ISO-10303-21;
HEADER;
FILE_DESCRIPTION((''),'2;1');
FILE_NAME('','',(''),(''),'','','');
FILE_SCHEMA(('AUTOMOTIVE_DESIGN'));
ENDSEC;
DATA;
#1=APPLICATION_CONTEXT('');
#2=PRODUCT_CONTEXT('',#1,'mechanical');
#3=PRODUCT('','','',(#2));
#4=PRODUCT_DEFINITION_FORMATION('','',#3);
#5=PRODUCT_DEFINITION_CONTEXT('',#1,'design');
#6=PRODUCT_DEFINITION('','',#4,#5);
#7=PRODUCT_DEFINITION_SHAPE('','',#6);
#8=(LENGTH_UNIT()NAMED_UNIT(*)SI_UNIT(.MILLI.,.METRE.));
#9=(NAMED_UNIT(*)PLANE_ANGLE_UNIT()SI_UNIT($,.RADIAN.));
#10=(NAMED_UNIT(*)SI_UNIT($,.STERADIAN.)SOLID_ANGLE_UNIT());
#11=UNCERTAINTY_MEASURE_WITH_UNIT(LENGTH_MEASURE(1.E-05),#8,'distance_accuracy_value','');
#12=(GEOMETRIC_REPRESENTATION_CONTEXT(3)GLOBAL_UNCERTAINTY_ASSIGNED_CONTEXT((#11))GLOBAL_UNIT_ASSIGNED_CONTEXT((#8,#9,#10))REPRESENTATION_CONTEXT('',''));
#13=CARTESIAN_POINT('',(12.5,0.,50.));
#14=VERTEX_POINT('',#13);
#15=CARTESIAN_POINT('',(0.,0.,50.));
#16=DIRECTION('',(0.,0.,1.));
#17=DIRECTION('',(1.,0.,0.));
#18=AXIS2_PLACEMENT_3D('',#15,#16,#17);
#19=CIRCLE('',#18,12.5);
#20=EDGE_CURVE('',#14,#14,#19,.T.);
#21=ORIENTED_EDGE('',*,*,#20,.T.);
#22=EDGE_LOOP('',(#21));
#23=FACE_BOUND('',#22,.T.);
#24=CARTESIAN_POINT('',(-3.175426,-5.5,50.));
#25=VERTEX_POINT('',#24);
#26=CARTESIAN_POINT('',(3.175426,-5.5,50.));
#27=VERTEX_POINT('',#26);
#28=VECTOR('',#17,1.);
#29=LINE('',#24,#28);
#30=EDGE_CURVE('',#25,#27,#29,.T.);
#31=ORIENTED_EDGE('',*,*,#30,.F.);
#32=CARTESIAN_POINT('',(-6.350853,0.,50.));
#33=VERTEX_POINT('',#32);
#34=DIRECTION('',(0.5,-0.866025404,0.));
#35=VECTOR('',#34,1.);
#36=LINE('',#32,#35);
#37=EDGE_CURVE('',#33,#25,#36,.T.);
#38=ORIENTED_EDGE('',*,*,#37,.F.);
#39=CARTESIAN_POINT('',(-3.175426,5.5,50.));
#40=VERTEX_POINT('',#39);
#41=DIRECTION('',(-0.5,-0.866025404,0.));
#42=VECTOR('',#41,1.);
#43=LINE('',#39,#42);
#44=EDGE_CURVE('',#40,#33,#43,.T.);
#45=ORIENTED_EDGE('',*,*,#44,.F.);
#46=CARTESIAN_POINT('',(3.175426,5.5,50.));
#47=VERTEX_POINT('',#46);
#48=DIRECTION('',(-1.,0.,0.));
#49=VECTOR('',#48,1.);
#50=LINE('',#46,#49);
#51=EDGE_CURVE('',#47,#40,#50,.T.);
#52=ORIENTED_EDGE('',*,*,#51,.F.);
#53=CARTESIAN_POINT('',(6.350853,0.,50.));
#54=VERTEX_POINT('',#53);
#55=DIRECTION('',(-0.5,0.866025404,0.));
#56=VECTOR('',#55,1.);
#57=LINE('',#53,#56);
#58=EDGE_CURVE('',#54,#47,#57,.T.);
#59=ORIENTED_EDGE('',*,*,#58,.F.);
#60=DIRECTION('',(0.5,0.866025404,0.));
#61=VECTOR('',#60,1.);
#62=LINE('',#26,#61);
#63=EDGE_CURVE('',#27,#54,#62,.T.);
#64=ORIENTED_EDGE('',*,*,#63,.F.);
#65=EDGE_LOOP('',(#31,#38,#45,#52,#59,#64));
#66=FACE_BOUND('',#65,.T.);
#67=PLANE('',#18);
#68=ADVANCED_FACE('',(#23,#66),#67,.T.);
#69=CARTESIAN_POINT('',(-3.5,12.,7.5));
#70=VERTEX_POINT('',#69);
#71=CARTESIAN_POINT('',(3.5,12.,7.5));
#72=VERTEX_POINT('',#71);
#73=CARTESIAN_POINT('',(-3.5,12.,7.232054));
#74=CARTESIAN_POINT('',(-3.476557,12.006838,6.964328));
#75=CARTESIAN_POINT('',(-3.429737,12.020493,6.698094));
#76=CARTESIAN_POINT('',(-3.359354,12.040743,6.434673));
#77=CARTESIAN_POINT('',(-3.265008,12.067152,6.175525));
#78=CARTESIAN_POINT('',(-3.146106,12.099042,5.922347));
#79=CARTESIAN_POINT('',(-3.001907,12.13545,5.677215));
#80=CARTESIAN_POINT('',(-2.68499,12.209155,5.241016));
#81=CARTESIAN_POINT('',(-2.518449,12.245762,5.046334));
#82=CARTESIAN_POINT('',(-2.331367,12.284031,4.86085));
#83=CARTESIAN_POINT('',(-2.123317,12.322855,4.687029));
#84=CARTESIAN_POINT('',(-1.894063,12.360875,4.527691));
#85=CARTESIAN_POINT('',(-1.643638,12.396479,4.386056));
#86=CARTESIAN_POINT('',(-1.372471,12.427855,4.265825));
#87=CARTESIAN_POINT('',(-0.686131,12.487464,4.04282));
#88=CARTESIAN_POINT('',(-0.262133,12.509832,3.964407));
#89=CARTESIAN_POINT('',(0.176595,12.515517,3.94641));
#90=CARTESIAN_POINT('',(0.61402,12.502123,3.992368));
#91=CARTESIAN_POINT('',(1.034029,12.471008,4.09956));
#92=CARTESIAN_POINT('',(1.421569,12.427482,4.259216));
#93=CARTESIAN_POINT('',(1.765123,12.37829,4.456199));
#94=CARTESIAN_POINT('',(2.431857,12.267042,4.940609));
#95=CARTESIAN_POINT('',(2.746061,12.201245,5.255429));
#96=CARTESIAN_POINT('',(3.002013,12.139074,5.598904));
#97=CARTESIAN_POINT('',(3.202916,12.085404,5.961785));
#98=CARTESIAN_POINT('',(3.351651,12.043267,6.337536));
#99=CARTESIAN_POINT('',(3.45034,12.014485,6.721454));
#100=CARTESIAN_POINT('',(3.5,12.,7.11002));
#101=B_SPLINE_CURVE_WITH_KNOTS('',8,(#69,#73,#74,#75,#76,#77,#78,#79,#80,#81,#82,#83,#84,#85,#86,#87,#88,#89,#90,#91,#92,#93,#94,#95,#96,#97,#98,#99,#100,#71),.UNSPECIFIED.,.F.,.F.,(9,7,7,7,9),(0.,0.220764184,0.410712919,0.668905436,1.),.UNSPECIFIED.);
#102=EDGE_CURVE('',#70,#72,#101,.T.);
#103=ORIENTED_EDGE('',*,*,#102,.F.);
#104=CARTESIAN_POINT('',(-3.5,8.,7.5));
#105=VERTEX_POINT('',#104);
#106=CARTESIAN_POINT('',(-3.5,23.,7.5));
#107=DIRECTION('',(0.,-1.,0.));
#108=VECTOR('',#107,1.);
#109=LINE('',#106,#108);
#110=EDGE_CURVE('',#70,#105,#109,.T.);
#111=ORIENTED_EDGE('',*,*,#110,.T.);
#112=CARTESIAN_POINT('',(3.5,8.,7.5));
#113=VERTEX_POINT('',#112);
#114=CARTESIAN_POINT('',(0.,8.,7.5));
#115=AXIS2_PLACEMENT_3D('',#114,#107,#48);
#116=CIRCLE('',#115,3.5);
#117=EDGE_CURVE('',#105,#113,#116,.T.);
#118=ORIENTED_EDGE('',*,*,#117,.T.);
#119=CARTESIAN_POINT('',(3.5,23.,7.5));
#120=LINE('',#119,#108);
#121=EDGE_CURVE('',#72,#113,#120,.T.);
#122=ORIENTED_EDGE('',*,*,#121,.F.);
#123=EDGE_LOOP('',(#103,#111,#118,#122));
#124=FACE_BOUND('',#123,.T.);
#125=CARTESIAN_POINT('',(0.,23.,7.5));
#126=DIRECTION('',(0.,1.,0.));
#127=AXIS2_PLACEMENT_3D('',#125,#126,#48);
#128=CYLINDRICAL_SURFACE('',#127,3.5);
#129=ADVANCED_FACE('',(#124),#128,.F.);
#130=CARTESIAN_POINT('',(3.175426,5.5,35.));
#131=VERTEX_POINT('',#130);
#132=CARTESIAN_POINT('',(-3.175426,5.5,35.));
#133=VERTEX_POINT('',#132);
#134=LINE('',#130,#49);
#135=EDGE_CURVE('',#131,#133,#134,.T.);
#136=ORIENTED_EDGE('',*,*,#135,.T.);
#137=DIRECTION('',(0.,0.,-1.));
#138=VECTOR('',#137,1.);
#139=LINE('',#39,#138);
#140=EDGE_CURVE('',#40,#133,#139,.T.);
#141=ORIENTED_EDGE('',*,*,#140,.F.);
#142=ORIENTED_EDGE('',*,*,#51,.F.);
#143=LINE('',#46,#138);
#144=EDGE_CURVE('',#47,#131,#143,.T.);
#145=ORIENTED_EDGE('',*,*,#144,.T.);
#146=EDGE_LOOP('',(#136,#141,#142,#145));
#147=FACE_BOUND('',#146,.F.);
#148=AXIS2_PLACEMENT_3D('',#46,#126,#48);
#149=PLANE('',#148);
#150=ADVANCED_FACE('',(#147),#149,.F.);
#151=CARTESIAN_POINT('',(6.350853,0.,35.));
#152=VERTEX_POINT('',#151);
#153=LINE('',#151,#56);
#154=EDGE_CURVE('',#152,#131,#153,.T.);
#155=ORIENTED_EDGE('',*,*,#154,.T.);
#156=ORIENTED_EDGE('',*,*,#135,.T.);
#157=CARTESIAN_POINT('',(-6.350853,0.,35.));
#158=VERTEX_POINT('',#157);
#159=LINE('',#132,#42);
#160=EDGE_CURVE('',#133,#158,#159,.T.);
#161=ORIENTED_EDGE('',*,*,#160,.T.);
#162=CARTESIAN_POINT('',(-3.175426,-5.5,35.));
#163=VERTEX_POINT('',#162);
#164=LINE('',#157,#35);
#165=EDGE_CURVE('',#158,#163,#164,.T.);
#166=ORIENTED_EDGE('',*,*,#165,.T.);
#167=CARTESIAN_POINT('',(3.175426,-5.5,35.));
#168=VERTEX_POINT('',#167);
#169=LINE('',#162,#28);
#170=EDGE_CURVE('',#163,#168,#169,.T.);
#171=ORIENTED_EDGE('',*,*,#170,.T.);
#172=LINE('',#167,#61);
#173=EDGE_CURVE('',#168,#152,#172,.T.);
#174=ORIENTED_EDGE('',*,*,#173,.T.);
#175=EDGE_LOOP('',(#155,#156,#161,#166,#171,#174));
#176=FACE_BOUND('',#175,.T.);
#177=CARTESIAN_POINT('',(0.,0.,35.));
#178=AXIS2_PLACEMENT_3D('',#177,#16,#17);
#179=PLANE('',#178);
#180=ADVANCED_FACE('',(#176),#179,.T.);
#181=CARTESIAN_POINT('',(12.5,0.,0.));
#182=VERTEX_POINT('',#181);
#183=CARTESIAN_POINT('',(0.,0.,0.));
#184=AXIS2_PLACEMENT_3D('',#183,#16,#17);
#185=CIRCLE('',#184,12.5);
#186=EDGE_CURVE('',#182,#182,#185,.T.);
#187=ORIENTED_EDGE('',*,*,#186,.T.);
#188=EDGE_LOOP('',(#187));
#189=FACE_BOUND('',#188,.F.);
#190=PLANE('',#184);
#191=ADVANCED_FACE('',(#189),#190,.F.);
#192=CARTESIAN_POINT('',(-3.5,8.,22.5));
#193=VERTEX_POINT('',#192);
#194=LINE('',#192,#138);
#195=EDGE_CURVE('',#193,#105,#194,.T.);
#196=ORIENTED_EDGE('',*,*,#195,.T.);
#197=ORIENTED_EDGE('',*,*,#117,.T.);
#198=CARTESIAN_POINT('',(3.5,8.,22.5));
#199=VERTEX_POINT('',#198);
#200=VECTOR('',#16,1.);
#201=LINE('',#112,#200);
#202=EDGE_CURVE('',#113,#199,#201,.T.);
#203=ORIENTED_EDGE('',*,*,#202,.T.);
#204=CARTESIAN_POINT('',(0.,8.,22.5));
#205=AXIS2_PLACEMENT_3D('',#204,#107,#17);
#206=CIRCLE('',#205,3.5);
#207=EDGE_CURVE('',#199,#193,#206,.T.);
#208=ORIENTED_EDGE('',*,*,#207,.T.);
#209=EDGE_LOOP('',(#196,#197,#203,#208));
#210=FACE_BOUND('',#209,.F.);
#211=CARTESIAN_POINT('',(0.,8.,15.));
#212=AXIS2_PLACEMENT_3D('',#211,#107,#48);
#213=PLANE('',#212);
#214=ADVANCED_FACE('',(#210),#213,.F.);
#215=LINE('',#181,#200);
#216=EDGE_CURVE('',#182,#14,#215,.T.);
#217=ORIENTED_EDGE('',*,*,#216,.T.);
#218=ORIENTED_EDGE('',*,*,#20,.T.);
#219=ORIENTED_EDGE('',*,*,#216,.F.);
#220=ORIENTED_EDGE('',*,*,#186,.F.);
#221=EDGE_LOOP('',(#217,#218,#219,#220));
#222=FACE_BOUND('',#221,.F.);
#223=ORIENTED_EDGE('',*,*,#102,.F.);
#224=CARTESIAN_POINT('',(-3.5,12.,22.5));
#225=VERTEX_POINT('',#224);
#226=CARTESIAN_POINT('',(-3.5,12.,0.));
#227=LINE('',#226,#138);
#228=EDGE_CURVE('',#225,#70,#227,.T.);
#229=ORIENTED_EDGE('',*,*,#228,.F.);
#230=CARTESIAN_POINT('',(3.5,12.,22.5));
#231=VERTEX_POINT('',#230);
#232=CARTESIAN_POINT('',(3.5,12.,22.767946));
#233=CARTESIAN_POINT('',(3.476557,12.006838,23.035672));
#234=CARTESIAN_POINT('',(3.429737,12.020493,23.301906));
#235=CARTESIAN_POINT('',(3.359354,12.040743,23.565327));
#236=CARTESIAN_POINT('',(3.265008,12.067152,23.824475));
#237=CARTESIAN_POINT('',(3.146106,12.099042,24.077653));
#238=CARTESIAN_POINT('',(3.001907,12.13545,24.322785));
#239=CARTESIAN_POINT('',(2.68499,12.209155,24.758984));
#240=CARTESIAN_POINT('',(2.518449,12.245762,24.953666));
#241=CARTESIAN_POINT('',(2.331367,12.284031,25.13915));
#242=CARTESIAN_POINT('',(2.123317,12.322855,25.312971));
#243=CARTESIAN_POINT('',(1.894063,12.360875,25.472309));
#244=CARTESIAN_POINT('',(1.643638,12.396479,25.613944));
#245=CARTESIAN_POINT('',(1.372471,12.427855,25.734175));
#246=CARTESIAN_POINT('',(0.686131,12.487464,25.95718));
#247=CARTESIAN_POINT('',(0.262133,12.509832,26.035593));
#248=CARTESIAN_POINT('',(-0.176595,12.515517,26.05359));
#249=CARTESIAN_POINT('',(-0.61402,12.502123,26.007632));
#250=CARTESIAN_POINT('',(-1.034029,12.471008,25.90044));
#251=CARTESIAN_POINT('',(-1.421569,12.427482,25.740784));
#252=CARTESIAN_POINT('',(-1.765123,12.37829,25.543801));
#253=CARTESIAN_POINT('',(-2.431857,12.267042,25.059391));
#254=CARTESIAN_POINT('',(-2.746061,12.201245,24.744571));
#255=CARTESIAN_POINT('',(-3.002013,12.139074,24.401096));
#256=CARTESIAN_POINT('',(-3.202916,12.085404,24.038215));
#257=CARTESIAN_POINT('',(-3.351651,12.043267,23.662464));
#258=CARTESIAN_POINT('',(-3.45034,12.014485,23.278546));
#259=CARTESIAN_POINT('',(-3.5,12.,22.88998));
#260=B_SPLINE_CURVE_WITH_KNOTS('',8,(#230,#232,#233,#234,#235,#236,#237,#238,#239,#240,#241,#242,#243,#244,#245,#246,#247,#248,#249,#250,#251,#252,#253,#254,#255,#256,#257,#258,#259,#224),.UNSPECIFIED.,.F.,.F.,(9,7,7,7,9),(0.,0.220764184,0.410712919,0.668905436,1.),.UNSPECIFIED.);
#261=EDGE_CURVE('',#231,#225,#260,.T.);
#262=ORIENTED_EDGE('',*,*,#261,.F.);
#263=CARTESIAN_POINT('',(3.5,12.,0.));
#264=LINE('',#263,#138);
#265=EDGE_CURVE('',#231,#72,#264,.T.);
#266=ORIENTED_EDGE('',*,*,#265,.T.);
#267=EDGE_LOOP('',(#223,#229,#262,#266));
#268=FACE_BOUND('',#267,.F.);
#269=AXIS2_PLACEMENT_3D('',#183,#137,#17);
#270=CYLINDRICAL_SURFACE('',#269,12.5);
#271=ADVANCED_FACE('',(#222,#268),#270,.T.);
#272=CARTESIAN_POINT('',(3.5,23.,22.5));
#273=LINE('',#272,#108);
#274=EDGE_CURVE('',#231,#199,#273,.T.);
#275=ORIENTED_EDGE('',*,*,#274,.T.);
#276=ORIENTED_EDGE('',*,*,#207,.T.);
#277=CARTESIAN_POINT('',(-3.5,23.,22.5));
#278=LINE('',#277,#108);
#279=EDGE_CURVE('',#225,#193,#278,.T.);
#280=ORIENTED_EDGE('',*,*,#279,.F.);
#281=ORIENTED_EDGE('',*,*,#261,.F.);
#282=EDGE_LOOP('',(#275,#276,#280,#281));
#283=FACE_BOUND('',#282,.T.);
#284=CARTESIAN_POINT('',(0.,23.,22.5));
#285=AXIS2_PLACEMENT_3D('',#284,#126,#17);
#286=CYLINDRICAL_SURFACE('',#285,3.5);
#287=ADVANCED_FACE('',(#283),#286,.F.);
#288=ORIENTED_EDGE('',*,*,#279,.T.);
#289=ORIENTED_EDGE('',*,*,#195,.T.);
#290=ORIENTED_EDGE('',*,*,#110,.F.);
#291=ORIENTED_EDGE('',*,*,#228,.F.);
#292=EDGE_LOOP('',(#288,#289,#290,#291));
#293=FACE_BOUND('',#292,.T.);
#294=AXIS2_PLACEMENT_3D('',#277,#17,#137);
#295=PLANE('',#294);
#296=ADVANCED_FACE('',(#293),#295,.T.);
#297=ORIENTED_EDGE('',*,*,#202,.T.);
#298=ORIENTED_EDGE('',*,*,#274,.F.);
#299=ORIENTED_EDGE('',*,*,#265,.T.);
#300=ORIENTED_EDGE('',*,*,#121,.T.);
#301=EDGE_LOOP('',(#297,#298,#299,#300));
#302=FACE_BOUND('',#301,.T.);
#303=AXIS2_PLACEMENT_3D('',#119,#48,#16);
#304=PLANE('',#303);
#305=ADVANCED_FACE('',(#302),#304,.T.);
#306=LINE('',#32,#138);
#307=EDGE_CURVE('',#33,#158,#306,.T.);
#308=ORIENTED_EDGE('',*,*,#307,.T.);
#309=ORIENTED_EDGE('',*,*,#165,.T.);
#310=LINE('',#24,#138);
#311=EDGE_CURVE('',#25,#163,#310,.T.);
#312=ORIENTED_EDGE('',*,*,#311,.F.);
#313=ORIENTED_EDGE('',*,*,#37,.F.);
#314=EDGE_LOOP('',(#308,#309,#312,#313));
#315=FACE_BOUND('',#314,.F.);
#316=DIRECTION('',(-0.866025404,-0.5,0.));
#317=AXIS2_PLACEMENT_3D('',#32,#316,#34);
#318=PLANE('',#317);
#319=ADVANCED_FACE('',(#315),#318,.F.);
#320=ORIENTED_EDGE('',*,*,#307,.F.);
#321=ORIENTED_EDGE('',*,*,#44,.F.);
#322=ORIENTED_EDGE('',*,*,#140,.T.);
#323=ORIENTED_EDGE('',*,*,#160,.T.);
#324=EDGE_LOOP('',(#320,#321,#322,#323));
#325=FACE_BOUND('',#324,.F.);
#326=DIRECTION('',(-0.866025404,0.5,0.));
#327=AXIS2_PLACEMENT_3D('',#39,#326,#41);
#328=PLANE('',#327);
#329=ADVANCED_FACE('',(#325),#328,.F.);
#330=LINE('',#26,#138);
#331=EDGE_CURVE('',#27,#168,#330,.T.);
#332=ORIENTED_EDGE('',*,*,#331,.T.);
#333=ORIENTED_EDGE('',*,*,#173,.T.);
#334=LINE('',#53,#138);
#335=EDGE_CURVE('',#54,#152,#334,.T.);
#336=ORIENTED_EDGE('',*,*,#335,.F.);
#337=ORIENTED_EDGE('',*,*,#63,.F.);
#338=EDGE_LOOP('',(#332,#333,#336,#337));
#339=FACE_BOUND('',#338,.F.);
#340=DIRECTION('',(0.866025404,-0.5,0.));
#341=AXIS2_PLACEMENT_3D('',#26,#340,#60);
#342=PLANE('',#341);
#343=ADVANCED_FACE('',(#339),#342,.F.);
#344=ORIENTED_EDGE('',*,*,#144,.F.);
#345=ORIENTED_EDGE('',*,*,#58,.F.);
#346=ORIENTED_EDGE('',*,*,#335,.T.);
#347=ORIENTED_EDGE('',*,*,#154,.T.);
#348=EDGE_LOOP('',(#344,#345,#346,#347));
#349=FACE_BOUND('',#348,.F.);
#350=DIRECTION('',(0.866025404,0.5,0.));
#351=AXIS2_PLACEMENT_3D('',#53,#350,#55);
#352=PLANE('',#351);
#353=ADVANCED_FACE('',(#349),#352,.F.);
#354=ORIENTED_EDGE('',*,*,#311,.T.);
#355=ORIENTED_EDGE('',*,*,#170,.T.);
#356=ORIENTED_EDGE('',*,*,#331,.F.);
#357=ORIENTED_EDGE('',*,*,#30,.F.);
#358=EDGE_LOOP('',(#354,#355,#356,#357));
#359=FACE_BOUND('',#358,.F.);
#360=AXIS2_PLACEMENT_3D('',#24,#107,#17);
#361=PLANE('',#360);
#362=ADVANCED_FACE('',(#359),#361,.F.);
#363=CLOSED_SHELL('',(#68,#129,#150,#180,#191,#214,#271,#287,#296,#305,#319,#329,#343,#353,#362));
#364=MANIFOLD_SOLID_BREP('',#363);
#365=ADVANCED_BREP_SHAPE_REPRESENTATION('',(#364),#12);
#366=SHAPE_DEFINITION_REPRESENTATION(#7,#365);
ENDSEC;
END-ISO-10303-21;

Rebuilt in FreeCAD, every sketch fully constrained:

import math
import FreeCAD as App
import Part
import Sketcher

V = App.Vector
Q = App.Units.Quantity


def add_polygon(sketch, points):
    """Adds a closed chain of lines whose ends are joined by coincident constraints."""
    first, n = sketch.GeometryCount, len(points)
    for a, b in zip(points, points[1:] + points[:1]):
        sketch.addGeometry(Part.LineSegment(App.Vector(*a, 0), App.Vector(*b, 0)), False)
    for i in range(n):
        sketch.addConstraint(Sketcher.Constraint("Coincident", first + i, 2, first + (i + 1) % n, 1))

doc = App.newDocument("Part")
body = doc.addObject("PartDesign::Body", "Body")

sketch1 = doc.addObject("Sketcher::SketchObject", "Sketch")
body.addObject(sketch1)
sketch1.AttachmentSupport = (doc.XY_Plane, [""])
sketch1.MapMode = "FlatFace"
sketch1.addGeometry(Part.Circle(V(0, 0, 0), V(0, 0, 1), 12), False)
sketch1.addConstraint([
    Sketcher.Constraint("Coincident", 0, 3, -1, 1),
    Sketcher.Constraint("Diameter", 0, 25.0),
])
pad1 = doc.addObject("PartDesign::Pad", "Pad")
body.addObject(pad1)
pad1.Profile = sketch1
pad1.Length = 50

sketch2 = doc.addObject("Sketcher::SketchObject", "Sketch001")
body.addObject(sketch2)
sketch2.AttachmentSupport = (doc.XY_Plane, [""])
sketch2.MapMode = "FlatFace"
sketch2.AttachmentOffset = App.Placement(V(0, 0, 50), App.Rotation())
add_polygon(sketch2, [(-3, 6), (-6, 0), (-3, -6), (3, -6), (6, 0), (3, 6)])
sketch2.addConstraint([
    Sketcher.Constraint("Horizontal", 2),
    Sketcher.Constraint("Horizontal", 5),
    Sketcher.Constraint("Symmetric", 0, 2, 3, 2, -1, 1),
    Sketcher.Constraint("Symmetric", 1, 2, 4, 2, -1, 1),
    Sketcher.Constraint("PointOnObject", 0, 2, -1),
    Sketcher.Constraint("Parallel", 0, 3),
    Sketcher.Constraint("Vertical", 2, 2, 4, 2),
    Sketcher.Constraint("Angle", 0, Q("-120 deg")),
    Sketcher.Constraint("DistanceY", 2, 2, 4, 2, 11.0),
    Sketcher.Constraint("DistanceX", 2, 1, 2, 2, 6.350853),
])
pocket1 = doc.addObject("PartDesign::Pocket", "Pocket")
body.addObject(pocket1)
pocket1.Profile = sketch2
pocket1.Length = 15

sketch3 = doc.addObject("Sketcher::SketchObject", "Sketch002")
body.addObject(sketch3)
sketch3.AttachmentSupport = (doc.XZ_Plane, [""])
sketch3.MapMode = "FlatFace"
sketch3.AttachmentOffset = App.Placement(V(0, 0, -23), App.Rotation())
sketch3.addGeometry([
    Part.LineSegment(V(3.5, 22.5, 0), V(3.5, 7.5, 0)),
    Part.ArcOfCircle(Part.Circle(V(0, 7.5, 0), V(0, 0, 1), 3.5), math.radians(180), math.radians(360)),
    Part.LineSegment(V(-3.5, 7.5, 0), V(-3.5, 22.5, 0)),
    Part.ArcOfCircle(Part.Circle(V(0, 22.5, 0), V(0, 0, 1), 3.5), math.radians(0), math.radians(180)),
], False)
sketch3.addConstraint([
    Sketcher.Constraint("Tangent", 0, 2, 1, 2),
    Sketcher.Constraint("Tangent", 1, 1, 2, 1),
    Sketcher.Constraint("Tangent", 2, 2, 3, 2),
    Sketcher.Constraint("Tangent", 3, 1, 0, 1),
    Sketcher.Constraint("Vertical", 0),
    Sketcher.Constraint("Vertical", 2),
    Sketcher.Constraint("PointOnObject", 1, 3, -2),
    Sketcher.Constraint("Radius", 1, 3.5),
    Sketcher.Constraint("DistanceY", 0, 2, 0, 1, 15.0),
    Sketcher.Constraint("DistanceY", -1, 1, 1, 3, 7.5),
])
pocket2 = doc.addObject("PartDesign::Pocket", "Pocket001")
body.addObject(pocket2)
pocket2.Profile = sketch3
pocket2.Length = 15
pocket2.Reversed = True

doc.recompute()
